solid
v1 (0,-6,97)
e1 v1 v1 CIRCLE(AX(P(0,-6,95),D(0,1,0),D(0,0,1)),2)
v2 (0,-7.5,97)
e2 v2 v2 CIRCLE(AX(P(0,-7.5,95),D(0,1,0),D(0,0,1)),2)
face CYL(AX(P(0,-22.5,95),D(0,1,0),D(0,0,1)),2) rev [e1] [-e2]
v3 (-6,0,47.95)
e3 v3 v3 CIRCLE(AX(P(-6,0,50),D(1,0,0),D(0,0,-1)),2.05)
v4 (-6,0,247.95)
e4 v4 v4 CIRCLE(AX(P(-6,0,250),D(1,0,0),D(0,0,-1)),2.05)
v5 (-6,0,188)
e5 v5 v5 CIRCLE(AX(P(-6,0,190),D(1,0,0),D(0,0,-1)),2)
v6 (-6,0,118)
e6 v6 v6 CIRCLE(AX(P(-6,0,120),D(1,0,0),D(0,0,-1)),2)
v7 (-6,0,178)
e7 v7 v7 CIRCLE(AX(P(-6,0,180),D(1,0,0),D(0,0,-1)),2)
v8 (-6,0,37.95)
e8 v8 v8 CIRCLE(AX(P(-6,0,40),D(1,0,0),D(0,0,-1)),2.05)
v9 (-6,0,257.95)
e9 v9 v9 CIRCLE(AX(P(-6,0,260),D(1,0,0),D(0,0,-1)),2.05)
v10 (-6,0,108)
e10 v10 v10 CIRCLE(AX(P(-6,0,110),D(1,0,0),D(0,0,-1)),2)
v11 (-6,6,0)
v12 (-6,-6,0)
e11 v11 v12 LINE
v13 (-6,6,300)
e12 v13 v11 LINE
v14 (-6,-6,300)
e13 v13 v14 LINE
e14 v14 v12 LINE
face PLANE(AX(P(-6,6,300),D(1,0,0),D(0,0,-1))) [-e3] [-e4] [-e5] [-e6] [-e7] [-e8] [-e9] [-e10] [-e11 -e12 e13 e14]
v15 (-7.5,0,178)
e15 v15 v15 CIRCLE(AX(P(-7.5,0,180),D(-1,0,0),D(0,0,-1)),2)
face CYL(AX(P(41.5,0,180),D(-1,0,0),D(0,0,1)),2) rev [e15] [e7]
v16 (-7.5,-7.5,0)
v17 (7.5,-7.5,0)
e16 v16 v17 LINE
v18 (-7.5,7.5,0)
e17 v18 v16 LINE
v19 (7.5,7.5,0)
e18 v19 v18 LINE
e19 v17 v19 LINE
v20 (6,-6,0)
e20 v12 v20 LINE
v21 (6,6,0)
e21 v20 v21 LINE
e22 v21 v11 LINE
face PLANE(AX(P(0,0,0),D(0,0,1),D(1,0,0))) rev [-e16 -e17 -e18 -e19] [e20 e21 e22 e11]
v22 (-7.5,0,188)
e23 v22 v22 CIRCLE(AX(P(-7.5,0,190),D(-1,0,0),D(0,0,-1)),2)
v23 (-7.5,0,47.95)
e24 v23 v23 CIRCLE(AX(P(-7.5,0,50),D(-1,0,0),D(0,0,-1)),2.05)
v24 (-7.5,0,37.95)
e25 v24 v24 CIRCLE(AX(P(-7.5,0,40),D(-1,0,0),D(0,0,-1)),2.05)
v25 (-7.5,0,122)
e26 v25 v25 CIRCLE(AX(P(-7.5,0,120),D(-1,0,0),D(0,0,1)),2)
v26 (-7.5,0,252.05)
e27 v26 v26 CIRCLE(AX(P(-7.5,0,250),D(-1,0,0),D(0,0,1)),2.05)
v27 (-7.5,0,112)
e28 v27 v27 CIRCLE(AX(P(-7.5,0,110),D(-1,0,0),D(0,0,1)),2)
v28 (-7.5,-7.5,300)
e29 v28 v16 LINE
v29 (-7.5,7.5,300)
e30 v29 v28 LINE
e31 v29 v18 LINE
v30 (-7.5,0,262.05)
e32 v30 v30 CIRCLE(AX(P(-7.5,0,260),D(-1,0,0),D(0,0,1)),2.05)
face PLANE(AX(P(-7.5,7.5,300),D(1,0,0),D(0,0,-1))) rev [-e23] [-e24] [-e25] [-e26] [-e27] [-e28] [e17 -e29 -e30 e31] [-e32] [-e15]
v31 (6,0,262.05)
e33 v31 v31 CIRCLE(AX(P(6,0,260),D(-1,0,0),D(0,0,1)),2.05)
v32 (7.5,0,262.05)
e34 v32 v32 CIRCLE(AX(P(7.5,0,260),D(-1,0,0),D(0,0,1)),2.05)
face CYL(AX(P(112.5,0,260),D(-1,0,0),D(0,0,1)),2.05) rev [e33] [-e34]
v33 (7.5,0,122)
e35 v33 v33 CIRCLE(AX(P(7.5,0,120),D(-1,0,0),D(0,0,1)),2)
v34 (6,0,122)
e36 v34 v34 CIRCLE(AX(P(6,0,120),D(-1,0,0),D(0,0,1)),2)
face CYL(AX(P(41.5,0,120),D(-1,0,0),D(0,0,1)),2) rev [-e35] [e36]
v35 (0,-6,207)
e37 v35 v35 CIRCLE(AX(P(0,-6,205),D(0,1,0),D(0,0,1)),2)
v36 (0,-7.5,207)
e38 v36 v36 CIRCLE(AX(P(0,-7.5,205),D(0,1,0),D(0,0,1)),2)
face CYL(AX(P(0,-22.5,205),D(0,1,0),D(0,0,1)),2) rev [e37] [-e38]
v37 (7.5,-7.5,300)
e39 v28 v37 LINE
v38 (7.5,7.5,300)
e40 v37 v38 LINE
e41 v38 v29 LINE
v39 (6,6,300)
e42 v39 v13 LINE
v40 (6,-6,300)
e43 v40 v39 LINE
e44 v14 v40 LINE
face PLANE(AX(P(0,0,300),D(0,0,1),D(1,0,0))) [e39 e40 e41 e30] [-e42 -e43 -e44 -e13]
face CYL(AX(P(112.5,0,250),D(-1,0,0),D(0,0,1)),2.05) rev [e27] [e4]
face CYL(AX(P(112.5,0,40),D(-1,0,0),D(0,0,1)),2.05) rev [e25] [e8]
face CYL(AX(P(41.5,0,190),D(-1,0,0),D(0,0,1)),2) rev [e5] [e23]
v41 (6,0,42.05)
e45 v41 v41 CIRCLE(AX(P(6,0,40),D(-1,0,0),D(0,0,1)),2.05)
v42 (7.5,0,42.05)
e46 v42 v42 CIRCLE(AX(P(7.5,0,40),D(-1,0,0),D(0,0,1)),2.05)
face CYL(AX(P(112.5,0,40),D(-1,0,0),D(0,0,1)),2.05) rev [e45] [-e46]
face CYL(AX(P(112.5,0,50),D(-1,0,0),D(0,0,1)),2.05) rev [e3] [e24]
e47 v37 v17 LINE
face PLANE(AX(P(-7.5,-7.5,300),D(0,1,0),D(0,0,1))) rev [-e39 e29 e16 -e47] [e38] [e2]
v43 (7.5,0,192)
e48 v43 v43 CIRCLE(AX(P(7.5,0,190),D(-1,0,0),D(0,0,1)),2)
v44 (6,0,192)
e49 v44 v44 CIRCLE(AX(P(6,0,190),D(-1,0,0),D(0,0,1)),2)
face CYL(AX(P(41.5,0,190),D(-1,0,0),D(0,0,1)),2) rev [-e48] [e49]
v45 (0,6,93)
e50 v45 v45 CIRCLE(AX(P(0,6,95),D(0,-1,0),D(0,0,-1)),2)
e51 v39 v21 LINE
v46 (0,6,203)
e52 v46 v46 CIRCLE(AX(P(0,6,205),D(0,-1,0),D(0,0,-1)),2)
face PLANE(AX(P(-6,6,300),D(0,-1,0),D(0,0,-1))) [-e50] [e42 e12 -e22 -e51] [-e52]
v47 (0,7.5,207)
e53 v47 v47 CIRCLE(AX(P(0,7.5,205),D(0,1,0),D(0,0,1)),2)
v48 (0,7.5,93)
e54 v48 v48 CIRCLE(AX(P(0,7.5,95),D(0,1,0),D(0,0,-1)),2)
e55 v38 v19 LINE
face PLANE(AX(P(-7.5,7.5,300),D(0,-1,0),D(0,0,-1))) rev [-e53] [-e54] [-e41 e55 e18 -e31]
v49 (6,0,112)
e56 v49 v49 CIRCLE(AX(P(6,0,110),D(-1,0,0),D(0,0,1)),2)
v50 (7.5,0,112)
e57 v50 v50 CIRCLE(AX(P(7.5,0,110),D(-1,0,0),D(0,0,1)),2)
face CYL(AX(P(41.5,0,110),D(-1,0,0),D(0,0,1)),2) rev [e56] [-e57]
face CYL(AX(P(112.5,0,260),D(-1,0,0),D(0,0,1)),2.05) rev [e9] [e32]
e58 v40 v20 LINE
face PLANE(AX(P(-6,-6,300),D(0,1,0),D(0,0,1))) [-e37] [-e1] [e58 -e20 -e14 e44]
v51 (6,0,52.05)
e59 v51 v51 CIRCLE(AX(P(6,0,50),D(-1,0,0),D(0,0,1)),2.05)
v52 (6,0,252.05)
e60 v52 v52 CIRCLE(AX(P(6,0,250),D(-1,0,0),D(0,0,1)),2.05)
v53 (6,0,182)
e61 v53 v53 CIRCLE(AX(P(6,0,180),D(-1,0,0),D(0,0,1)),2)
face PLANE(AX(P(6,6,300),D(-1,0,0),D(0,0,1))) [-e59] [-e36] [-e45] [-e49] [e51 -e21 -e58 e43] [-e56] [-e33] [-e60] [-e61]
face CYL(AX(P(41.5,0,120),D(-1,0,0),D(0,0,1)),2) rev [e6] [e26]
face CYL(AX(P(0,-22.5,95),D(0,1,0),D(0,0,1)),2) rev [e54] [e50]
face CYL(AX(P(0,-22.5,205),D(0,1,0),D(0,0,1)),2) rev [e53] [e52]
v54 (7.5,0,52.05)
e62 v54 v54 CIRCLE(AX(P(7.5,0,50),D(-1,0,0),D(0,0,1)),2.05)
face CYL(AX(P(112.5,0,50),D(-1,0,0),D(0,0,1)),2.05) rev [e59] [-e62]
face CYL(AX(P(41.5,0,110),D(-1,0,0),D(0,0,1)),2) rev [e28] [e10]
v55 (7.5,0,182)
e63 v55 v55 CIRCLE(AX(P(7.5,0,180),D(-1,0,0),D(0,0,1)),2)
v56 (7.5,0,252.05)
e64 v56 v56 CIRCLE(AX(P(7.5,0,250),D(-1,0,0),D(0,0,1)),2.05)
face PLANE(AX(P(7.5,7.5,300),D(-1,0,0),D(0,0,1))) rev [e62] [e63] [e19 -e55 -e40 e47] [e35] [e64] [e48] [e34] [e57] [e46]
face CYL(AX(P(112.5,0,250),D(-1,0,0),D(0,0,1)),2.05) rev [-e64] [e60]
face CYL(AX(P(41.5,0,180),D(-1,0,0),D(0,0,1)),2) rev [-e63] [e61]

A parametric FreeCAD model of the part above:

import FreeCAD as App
import Part
import Sketcher
from FreeCAD import Vector
Q = App.Units.Quantity

doc = App.newDocument("Part")
body = doc.addObject("PartDesign::Body", "Body")

sketch1 = body.newObject("Sketcher::SketchObject", "Sketch")
sketch1.AttachmentSupport = (doc.getObject("XY_Plane"), [""])
sketch1.MapMode = "FlatFace"
sketch1.addGeometry(Part.LineSegment(Vector(-8, 8, 0), Vector(-8, -8, 0)), False)
sketch1.addGeometry(Part.LineSegment(Vector(-8, -8, 0), Vector(8, -8, 0)), False)
sketch1.addGeometry(Part.LineSegment(Vector(8, -8, 0), Vector(8, 8, 0)), False)
sketch1.addGeometry(Part.LineSegment(Vector(8, 8, 0), Vector(-8, 8, 0)), False)
sketch1.addGeometry(Part.LineSegment(Vector(6, -6, 0), Vector(-6, -6, 0)), False)
sketch1.addGeometry(Part.LineSegment(Vector(-6, -6, 0), Vector(-6, 6, 0)), False)
sketch1.addGeometry(Part.LineSegment(Vector(-6, 6, 0), Vector(6, 6, 0)), False)
sketch1.addGeometry(Part.LineSegment(Vector(6, 6, 0), Vector(6, -6, 0)), False)
sketch1.addConstraint(Sketcher.Constraint("Coincident", 0, 2, 1, 1))
sketch1.addConstraint(Sketcher.Constraint("Coincident", 1, 2, 2, 1))
sketch1.addConstraint(Sketcher.Constraint("Coincident", 2, 2, 3, 1))
sketch1.addConstraint(Sketcher.Constraint("Coincident", 3, 2, 0, 1))
sketch1.addConstraint(Sketcher.Constraint("Coincident", 4, 2, 5, 1))
sketch1.addConstraint(Sketcher.Constraint("Coincident", 5, 2, 6, 1))
sketch1.addConstraint(Sketcher.Constraint("Coincident", 6, 2, 7, 1))
sketch1.addConstraint(Sketcher.Constraint("Coincident", 7, 2, 4, 1))
sketch1.addConstraint(Sketcher.Constraint("Vertical", 0))
sketch1.addConstraint(Sketcher.Constraint("Horizontal", 1))
sketch1.addConstraint(Sketcher.Constraint("Vertical", 2))
sketch1.addConstraint(Sketcher.Constraint("Horizontal", 3))
sketch1.addConstraint(Sketcher.Constraint("Horizontal", 4))
sketch1.addConstraint(Sketcher.Constraint("Vertical", 5))
sketch1.addConstraint(Sketcher.Constraint("Horizontal", 6))
sketch1.addConstraint(Sketcher.Constraint("Vertical", 7))
sketch1.addConstraint(Sketcher.Constraint("Symmetric", 0, 2, 2, 2, -1, 1))
sketch1.addConstraint(Sketcher.Constraint("Symmetric", 4, 2, 6, 2, -1, 1))
sketch1.addConstraint(Sketcher.Constraint("Equal", 3, 0))
sketch1.addConstraint(Sketcher.Constraint("Equal", 6, 5))
sketch1.addConstraint(Sketcher.Constraint("DistanceX", 1, 1, 1, 2, Q("15 mm")))
sketch1.addConstraint(Sketcher.Constraint("DistanceX", 4, 2, 4, 1, Q("12 mm")))
pad1 = body.newObject("PartDesign::Pad", "Pad")
pad1.Profile = sketch1
pad1.Length = 300

sketch2 = body.newObject("Sketcher::SketchObject", "Sketch001")
sketch2.AttachmentSupport = (doc.getObject("XZ_Plane"), [""])
sketch2.MapMode = "FlatFace"
sketch2.AttachmentOffset = App.Placement(Vector(0, 0, -7.5), App.Rotation())
sketch2.addGeometry(Part.Circle(Vector(0, 205, 0), Vector(0, 0, 1), 2), False)
sketch2.addGeometry(Part.Circle(Vector(0, 95, 0), Vector(0, 0, 1), 2), False)
sketch2.addConstraint(Sketcher.Constraint("Equal", 0, 1))
sketch2.addConstraint(Sketcher.Constraint("PointOnObject", 0, 3, -2))
sketch2.addConstraint(Sketcher.Constraint("PointOnObject", 1, 3, -2))
sketch2.addConstraint(Sketcher.Constraint("Diameter", 0, Q("4 mm")))
sketch2.addConstraint(Sketcher.Constraint("DistanceY", -1, 1, 0, 3, Q("205 mm")))
sketch2.addConstraint(Sketcher.Constraint("DistanceY", -1, 1, 1, 3, Q("95 mm")))
pocket1 = body.newObject("PartDesign::Pocket", "Pocket")
pocket1.Profile = sketch2
pocket1.Length = 30
pocket1.Reversed = True

sketch3 = body.newObject("Sketcher::SketchObject", "Sketch002")
sketch3.AttachmentSupport = (doc.getObject("YZ_Plane"), [""])
sketch3.MapMode = "FlatFace"
sketch3.AttachmentOffset = App.Placement(Vector(0, 0, -7.5), App.Rotation())
sketch3.addGeometry(Part.Circle(Vector(0, 250, 0), Vector(0, 0, 1), 2), False)
sketch3.addGeometry(Part.Circle(Vector(0, 260, 0), Vector(0, 0, 1), 2), False)
sketch3.addGeometry(Part.Circle(Vector(0, 40, 0), Vector(0, 0, 1), 2), False)
sketch3.addGeometry(Part.Circle(Vector(0, 50, 0), Vector(0, 0, 1), 2), False)
sketch3.addConstraint(Sketcher.Constraint("Equal", 0, 1))
sketch3.addConstraint(Sketcher.Constraint("Equal", 1, 2))
sketch3.addConstraint(Sketcher.Constraint("Equal", 2, 3))
sketch3.addConstraint(Sketcher.Constraint("PointOnObject", 0, 3, -2))
sketch3.addConstraint(Sketcher.Constraint("PointOnObject", 1, 3, -2))
sketch3.addConstraint(Sketcher.Constraint("PointOnObject", 2, 3, -2))
sketch3.addConstraint(Sketcher.Constraint("PointOnObject", 3, 3, -2))
sketch3.addConstraint(Sketcher.Constraint("Diameter", 0, Q("4.1 mm")))
sketch3.addConstraint(Sketcher.Constraint("DistanceY", -1, 1, 0, 3, Q("250 mm")))
sketch3.addConstraint(Sketcher.Constraint("DistanceY", -1, 1, 1, 3, Q("260 mm")))
sketch3.addConstraint(Sketcher.Constraint("DistanceY", -1, 1, 2, 3, Q("40 mm")))
sketch3.addConstraint(Sketcher.Constraint("DistanceY", -1, 1, 3, 3, Q("50 mm")))
pocket2 = body.newObject("PartDesign::Pocket", "Pocket001")
pocket2.Profile = sketch3
pocket2.Length = 120
pocket2.Reversed = True

sketch4 = body.newObject("Sketcher::SketchObject", "Sketch003")
sketch4.AttachmentSupport = (doc.getObject("YZ_Plane"), [""])
sketch4.MapMode = "FlatFace"
sketch4.AttachmentOffset = App.Placement(Vector(0, 0, -7.5), App.Rotation())
sketch4.addGeometry(Part.Circle(Vector(0, 120, 0), Vector(0, 0, 1), 2), False)
sketch4.addGeometry(Part.Circle(Vector(0, 110, 0), Vector(0, 0, 1), 2), False)
sketch4.addGeometry(Part.Circle(Vector(0, 190, 0), Vector(0, 0, 1), 2), False)
sketch4.addGeometry(Part.Circle(Vector(0, 180, 0), Vector(0, 0, 1), 2), False)
sketch4.addConstraint(Sketcher.Constraint("Equal", 0, 1))
sketch4.addConstraint(Sketcher.Constraint("Equal", 1, 2))
sketch4.addConstraint(Sketcher.Constraint("Equal", 2, 3))
sketch4.addConstraint(Sketcher.Constraint("PointOnObject", 0, 3, -2))
sketch4.addConstraint(Sketcher.Constraint("PointOnObject", 1, 3, -2))
sketch4.addConstraint(Sketcher.Constraint("PointOnObject", 2, 3, -2))
sketch4.addConstraint(Sketcher.Constraint("PointOnObject", 3, 3, -2))
sketch4.addConstraint(Sketcher.Constraint("Diameter", 0, Q("4 mm")))
sketch4.addConstraint(Sketcher.Constraint("DistanceY", -1, 1, 0, 3, Q("120 mm")))
sketch4.addConstraint(Sketcher.Constraint("DistanceY", -1, 1, 1, 3, Q("110 mm")))
sketch4.addConstraint(Sketcher.Constraint("DistanceY", -1, 1, 2, 3, Q("190 mm")))
sketch4.addConstraint(Sketcher.Constraint("DistanceY", -1, 1, 3, 3, Q("180 mm")))
pocket3 = body.newObject("PartDesign::Pocket", "Pocket002")
pocket3.Profile = sketch4
pocket3.Length = 49
pocket3.Reversed = True

doc.recompute()
